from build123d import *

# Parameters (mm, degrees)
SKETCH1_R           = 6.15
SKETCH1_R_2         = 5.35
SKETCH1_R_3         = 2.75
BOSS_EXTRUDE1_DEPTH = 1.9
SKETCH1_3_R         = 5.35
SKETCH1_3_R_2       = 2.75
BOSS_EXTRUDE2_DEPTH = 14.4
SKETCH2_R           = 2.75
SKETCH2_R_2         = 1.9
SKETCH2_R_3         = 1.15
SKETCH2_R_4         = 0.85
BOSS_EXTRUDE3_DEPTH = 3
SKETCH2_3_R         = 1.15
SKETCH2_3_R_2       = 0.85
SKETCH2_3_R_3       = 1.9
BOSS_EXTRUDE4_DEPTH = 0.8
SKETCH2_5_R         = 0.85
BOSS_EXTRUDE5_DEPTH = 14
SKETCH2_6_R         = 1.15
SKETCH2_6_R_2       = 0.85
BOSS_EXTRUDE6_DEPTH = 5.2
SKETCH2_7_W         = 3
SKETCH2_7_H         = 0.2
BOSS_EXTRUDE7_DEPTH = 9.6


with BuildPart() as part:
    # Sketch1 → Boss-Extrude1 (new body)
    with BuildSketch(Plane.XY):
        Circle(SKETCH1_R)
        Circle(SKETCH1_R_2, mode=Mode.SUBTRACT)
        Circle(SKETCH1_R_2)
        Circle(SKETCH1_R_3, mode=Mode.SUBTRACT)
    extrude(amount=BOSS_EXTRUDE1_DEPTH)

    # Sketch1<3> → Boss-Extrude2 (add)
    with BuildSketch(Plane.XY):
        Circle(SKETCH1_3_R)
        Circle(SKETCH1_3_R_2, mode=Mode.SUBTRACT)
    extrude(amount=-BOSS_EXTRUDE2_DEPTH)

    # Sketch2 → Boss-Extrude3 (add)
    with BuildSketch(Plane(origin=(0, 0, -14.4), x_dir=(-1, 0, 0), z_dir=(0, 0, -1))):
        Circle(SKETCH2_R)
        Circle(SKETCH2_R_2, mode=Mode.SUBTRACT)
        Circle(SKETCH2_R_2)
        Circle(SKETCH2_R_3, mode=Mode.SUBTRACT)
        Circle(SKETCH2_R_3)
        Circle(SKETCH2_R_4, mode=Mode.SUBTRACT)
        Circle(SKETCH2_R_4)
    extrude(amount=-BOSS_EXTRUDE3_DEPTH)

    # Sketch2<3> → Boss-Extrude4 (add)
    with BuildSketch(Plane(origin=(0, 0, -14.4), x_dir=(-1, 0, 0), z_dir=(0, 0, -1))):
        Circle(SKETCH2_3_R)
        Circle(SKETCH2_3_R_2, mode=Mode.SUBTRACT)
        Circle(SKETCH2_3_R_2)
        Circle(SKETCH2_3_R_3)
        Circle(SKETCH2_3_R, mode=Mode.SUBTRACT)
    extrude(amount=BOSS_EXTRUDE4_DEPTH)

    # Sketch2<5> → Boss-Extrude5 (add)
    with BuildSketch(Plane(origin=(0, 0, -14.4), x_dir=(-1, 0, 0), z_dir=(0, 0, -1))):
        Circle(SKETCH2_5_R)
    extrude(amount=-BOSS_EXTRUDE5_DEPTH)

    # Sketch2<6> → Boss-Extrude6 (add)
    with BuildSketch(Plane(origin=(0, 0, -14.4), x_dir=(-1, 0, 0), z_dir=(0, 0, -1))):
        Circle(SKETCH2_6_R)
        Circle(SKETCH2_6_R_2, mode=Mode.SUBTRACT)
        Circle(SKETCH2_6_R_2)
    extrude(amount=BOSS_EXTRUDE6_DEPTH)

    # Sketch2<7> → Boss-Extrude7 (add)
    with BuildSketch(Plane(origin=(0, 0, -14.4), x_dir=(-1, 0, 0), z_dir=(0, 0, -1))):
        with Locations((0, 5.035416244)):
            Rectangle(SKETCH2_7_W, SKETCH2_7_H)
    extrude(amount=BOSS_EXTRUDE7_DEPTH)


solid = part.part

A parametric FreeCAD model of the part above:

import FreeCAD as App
import Part
import Sketcher

doc = App.newDocument("Part")
body = doc.addObject("PartDesign::Body", "Body")

# Sketch on XY plane
sketch1 = body.newObject("Sketcher::SketchObject", "Sketch")
sketch1.AttachmentSupport = (doc.getObject("XY_Plane"), [""])
sketch1.MapMode = "FlatFace"
sketch1.addGeometry([
    Part.Circle(App.Vector(0, 0, 0), App.Vector(0, 0, 1), 6.2),
    Part.Circle(App.Vector(0, 0, 0), App.Vector(0, 0, 1), 2.8),
], False)
sketch1.addConstraint([
    Sketcher.Constraint("Coincident", 0, 3, -1, 1),
    Sketcher.Constraint("Coincident", 1, 3, -1, 1),
    Sketcher.Constraint("Diameter", 0, 12.3),
    Sketcher.Constraint("Diameter", 1, 5.5),
])
pad1 = body.newObject("PartDesign::Pad", "Pad")
pad1.Profile = sketch1
pad1.Length = 1.9

# Sketch on XY plane
sketch2 = body.newObject("Sketcher::SketchObject", "Sketch001")
sketch2.AttachmentSupport = (doc.getObject("XY_Plane"), [""])
sketch2.MapMode = "FlatFace"
sketch2.addGeometry([
    Part.Circle(App.Vector(0, 0, 0), App.Vector(0, 0, 1), 5.3),
    Part.Circle(App.Vector(0, 0, 0), App.Vector(0, 0, 1), 2.8),
], False)
sketch2.addConstraint([
    Sketcher.Constraint("Coincident", 0, 3, -1, 1),
    Sketcher.Constraint("Coincident", 1, 3, -1, 1),
    Sketcher.Constraint("Diameter", 0, 10.7),
    Sketcher.Constraint("Diameter", 1, 5.5),
])
pad2 = body.newObject("PartDesign::Pad", "Pad001")
pad2.Profile = sketch2
pad2.Length = 14.4
pad2.Reversed = True

# Sketch on XY plane
sketch3 = body.newObject("Sketcher::SketchObject", "Sketch002")
sketch3.AttachmentSupport = (doc.getObject("XY_Plane"), [""])
sketch3.MapMode = "FlatFace"
sketch3.AttachmentOffset = App.Placement(App.Vector(0, 0, -14.4), App.Rotation())
sketch3.addGeometry(Part.Circle(App.Vector(0, 0, 0), App.Vector(0, 0, 1), 2.8), False)
sketch3.addConstraint([
    Sketcher.Constraint("Coincident", 0, 3, -1, 1),
    Sketcher.Constraint("Diameter", 0, 5.5),
])
pad3 = body.newObject("PartDesign::Pad", "Pad002")
pad3.Profile = sketch3
pad3.Length = 3

# Sketch on XY plane
sketch4 = body.newObject("Sketcher::SketchObject", "Sketch003")
sketch4.AttachmentSupport = (doc.getObject("XY_Plane"), [""])
sketch4.MapMode = "FlatFace"
sketch4.AttachmentOffset = App.Placement(App.Vector(0, 0, -14.4), App.Rotation())
sketch4.addGeometry([
    Part.Circle(App.Vector(0, 0, 0), App.Vector(0, 0, 1), 1.9),
    Part.Circle(App.Vector(0, 0, 0), App.Vector(0, 0, 1), 1.1),
], False)
sketch4.addConstraint([
    Sketcher.Constraint("Coincident", 0, 3, -1, 1),
    Sketcher.Constraint("Coincident", 1, 3, -1, 1),
    Sketcher.Constraint("Diameter", 0, 3.8),
    Sketcher.Constraint("Diameter", 1, 2.3),
])
pad4 = body.newObject("PartDesign::Pad", "Pad003")
pad4.Profile = sketch4
pad4.Length = 0.8
pad4.Reversed = True

# Sketch on XY plane
sketch5 = body.newObject("Sketcher::SketchObject", "Sketch004")
sketch5.AttachmentSupport = (doc.getObject("XY_Plane"), [""])
sketch5.MapMode = "FlatFace"
sketch5.AttachmentOffset = App.Placement(App.Vector(0, 0, -14.4), App.Rotation())
sketch5.addGeometry(Part.Circle(App.Vector(0, 0, 0), App.Vector(0, 0, 1), 0.8), False)
sketch5.addConstraint([
    Sketcher.Constraint("Coincident", 0, 3, -1, 1),
    Sketcher.Constraint("Diameter", 0, 1.7),
])
pad5 = body.newObject("PartDesign::Pad", "Pad004")
pad5.Profile = sketch5
pad5.Length = 14

# Sketch on XY plane
sketch6 = body.newObject("Sketcher::SketchObject", "Sketch005")
sketch6.AttachmentSupport = (doc.getObject("XY_Plane"), [""])
sketch6.MapMode = "FlatFace"
sketch6.AttachmentOffset = App.Placement(App.Vector(0, 0, -14.4), App.Rotation())
sketch6.addGeometry(Part.Circle(App.Vector(0, 0, 0), App.Vector(0, 0, 1), 1.1), False)
sketch6.addConstraint([
    Sketcher.Constraint("Coincident", 0, 3, -1, 1),
    Sketcher.Constraint("Diameter", 0, 2.3),
])
pad6 = body.newObject("PartDesign::Pad", "Pad005")
pad6.Profile = sketch6
pad6.Length = 5.2
pad6.Reversed = True

# Sketch on XY plane
sketch7 = body.newObject("Sketcher::SketchObject", "Sketch006")
sketch7.AttachmentSupport = (doc.getObject("XY_Plane"), [""])
sketch7.MapMode = "FlatFace"
sketch7.AttachmentOffset = App.Placement(App.Vector(0, 0, -14.4), App.Rotation())
sketch7.addGeometry([
    Part.LineSegment(App.Vector(1.5, 5.14, 0), App.Vector(1.5, 4.94, 0)),
    Part.LineSegment(App.Vector(1.5, 4.94, 0), App.Vector(-1.5, 4.94, 0)),
    Part.LineSegment(App.Vector(-1.5, 4.94, 0), App.Vector(-1.5, 5.14, 0)),
    Part.LineSegment(App.Vector(-1.5, 5.14, 0), App.Vector(1.5, 5.14, 0)),
], False)
sketch7.addConstraint([
    Sketcher.Constraint("Coincident", 0, 2, 1, 1),
    Sketcher.Constraint("Coincident", 1, 2, 2, 1),
    Sketcher.Constraint("Coincident", 2, 2, 3, 1),
    Sketcher.Constraint("Coincident", 3, 2, 0, 1),
    Sketcher.Constraint("Vertical", 0),
    Sketcher.Constraint("Horizontal", 1),
    Sketcher.Constraint("Vertical", 2),
    Sketcher.Constraint("Horizontal", 3),
    Sketcher.Constraint("DistanceX", 1, 2, 1, 1, 3.0),
    Sketcher.Constraint("DistanceY", 0, 2, 0, 1, 0.2),
    Sketcher.Constraint("DistanceX", -1, 1, 0, 2, 1.5),
    Sketcher.Constraint("DistanceY", -1, 1, 0, 2, 4.935416),
])
pad7 = body.newObject("PartDesign::Pad", "Pad006")
pad7.Profile = sketch7
pad7.Length = 9.6
pad7.Reversed = True

doc.recompute()
